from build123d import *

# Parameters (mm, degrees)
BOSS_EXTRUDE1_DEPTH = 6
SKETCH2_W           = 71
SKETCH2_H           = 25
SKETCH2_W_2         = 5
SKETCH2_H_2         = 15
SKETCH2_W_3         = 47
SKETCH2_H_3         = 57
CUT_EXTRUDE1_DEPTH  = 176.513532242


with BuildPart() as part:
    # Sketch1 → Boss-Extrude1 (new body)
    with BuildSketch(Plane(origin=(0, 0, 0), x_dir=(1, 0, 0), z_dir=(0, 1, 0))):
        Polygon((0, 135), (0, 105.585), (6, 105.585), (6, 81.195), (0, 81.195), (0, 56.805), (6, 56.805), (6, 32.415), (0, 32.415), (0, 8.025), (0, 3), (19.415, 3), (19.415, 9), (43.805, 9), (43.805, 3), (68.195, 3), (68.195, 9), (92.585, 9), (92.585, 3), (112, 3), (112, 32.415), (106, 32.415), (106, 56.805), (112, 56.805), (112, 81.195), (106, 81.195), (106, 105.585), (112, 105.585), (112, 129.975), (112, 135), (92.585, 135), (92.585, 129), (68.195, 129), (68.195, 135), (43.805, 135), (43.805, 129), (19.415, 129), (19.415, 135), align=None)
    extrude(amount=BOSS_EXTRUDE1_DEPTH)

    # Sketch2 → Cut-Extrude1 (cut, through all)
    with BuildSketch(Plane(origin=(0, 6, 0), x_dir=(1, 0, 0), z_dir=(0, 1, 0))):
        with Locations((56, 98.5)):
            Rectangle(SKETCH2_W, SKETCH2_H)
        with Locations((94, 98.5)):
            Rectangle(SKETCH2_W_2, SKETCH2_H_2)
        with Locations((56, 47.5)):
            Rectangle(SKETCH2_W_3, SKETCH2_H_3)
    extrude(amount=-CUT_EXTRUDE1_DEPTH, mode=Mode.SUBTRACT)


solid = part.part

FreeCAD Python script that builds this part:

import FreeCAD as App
import Part
import Sketcher

V = App.Vector


def add_polygon(sketch, points):
    """Adds a closed chain of lines whose ends are joined by coincident constraints."""
    first, n = sketch.GeometryCount, len(points)
    for a, b in zip(points, points[1:] + points[:1]):
        sketch.addGeometry(Part.LineSegment(App.Vector(*a, 0), App.Vector(*b, 0)), False)
    for i in range(n):
        sketch.addConstraint(Sketcher.Constraint("Coincident", first + i, 2, first + (i + 1) % n, 1))

doc = App.newDocument("Part")
body = doc.addObject("PartDesign::Body", "Body")

# Sketch on XZ plane
sketch1 = body.newObject("Sketcher::SketchObject", "Sketch")
sketch1.AttachmentSupport = (doc.getObject("XZ_Plane"), [""])
sketch1.MapMode = "FlatFace"
add_polygon(sketch1, [(0, -135), (0, -106), (6, -106), (6, -81), (0, -81), (0, -57), (6, -57), (6, -32), (0, -32), (0, -3), (19, -3), (19, -9), (44, -9), (44, -3), (68, -3), (68, -9), (93, -9), (93, -3), (112, -3), (112, -32), (106, -32), (106, -57), (112, -57), (112, -81), (106, -81), (106, -106), (112, -106), (112, -135), (93, -135), (93, -129), (68, -129), (68, -135), (44, -135), (44, -129), (19, -129), (19, -135)])  # lines 0-35
sketch1.addConstraint([
    Sketcher.Constraint("Vertical", 0),
    Sketcher.Constraint("Horizontal", 1),
    Sketcher.Constraint("Vertical", 2),
    Sketcher.Constraint("Horizontal", 3),
    Sketcher.Constraint("Vertical", 4),
    Sketcher.Constraint("Horizontal", 5),
    Sketcher.Constraint("Vertical", 6),
    Sketcher.Constraint("Horizontal", 7),
    Sketcher.Constraint("Vertical", 8),
    Sketcher.Constraint("Horizontal", 9),
    Sketcher.Constraint("Vertical", 10),
    Sketcher.Constraint("Horizontal", 11),
    Sketcher.Constraint("Vertical", 12),
    Sketcher.Constraint("Horizontal", 13),
    Sketcher.Constraint("Vertical", 14),
    Sketcher.Constraint("Horizontal", 15),
    Sketcher.Constraint("Vertical", 16),
    Sketcher.Constraint("Horizontal", 17),
    Sketcher.Constraint("Vertical", 18),
    Sketcher.Constraint("Horizontal", 19),
    Sketcher.Constraint("Vertical", 20),
    Sketcher.Constraint("Horizontal", 21),
    Sketcher.Constraint("Vertical", 22),
    Sketcher.Constraint("Horizontal", 23),
    Sketcher.Constraint("Vertical", 24),
    Sketcher.Constraint("Horizontal", 25),
    Sketcher.Constraint("Vertical", 26),
    Sketcher.Constraint("Horizontal", 27),
    Sketcher.Constraint("Vertical", 28),
    Sketcher.Constraint("Horizontal", 29),
    Sketcher.Constraint("Vertical", 30),
    Sketcher.Constraint("Horizontal", 31),
    Sketcher.Constraint("Vertical", 32),
    Sketcher.Constraint("Horizontal", 33),
    Sketcher.Constraint("Vertical", 34),
    Sketcher.Constraint("Horizontal", 35),
    Sketcher.Constraint("PointOnObject", 0, 2, -2),
    Sketcher.Constraint("PointOnObject", 3, 2, -2),
    Sketcher.Constraint("PointOnObject", 7, 2, -2),
    Sketcher.Constraint("Horizontal", 9, 2, 12, 2),
    Sketcher.Constraint("Horizontal", 11, 2, 14, 2),
    Sketcher.Constraint("Horizontal", 13, 2, 16, 2),
    Sketcher.Constraint("Horizontal", 7, 2, 18, 2),
    Sketcher.Constraint("Horizontal", 5, 2, 20, 2),
    Sketcher.Constraint("Horizontal", 3, 2, 22, 2),
    Sketcher.Constraint("Horizontal", 1, 2, 24, 2),
    Sketcher.Constraint("Horizontal", 27, 2, 30, 2),
    Sketcher.Constraint("Horizontal", 29, 2, 32, 2),
    Sketcher.Constraint("Horizontal", 31, 2, 34, 2),
    Sketcher.Constraint("Vertical", 2, 2, 5, 2),
    Sketcher.Constraint("Vertical", 18, 2, 21, 2),
    Sketcher.Constraint("Vertical", 20, 2, 23, 2),
    Sketcher.Constraint("Vertical", 22, 2, 25, 2),
    Sketcher.Constraint("Vertical", 16, 2, 27, 2),
    Sketcher.Constraint("Vertical", 14, 2, 29, 2),
    Sketcher.Constraint("Vertical", 12, 2, 31, 2),
    Sketcher.Constraint("Vertical", 10, 2, 33, 2),
    Sketcher.Constraint("Equal", 11, 13),
    Sketcher.Constraint("Equal", 13, 15),
    Sketcher.Constraint("Equal", 9, 17),
    Sketcher.Constraint("Equal", 7, 19),
    Sketcher.Constraint("Equal", 33, 2),
    Sketcher.Constraint("Equal", 2, 4),
    Sketcher.Constraint("Equal", 4, 6),
    Sketcher.Constraint("Equal", 0, 8),
    Sketcher.Constraint("Equal", 25, 10),
    Sketcher.Constraint("Equal", 16, 28),
    Sketcher.Constraint("DistanceX", 1, 1, 1, 2, 6.0),
    Sketcher.Constraint("DistanceY", 8, 2, -1, 1, 3.0),
    Sketcher.Constraint("DistanceX", -1, 1, 17, 2, 112.0),
    Sketcher.Constraint("DistanceY", 26, 2, -1, 1, 135.0),
    Sketcher.Constraint("DistanceX", 11, 1, 11, 2, 24.39),
])
pad1 = body.newObject("PartDesign::Pad", "Pad")
pad1.Profile = sketch1
pad1.Length = 6
pad1.Reversed = True

# Sketch on XZ plane
sketch2 = body.newObject("Sketcher::SketchObject", "Sketch001")
sketch2.AttachmentSupport = (doc.getObject("XZ_Plane"), [""])
sketch2.MapMode = "FlatFace"
sketch2.AttachmentOffset = App.Placement(V(0, 0, -6), App.Rotation())
add_polygon(sketch2, [(20, -111), (20, -86), (92, -86), (92, -91), (96, -91), (96, -106), (92, -106), (92, -111)])  # lines 0-7
add_polygon(sketch2, [(32, -76), (32, -19), (80, -19), (80, -76)])  # lines 8-11
sketch2.addConstraint([
    Sketcher.Constraint("Vertical", 0),
    Sketcher.Constraint("Horizontal", 1),
    Sketcher.Constraint("Vertical", 2),
    Sketcher.Constraint("Horizontal", 3),
    Sketcher.Constraint("Vertical", 4),
    Sketcher.Constraint("Horizontal", 5),
    Sketcher.Constraint("Vertical", 6),
    Sketcher.Constraint("Horizontal", 7),
    Sketcher.Constraint("Vertical", 8),
    Sketcher.Constraint("Horizontal", 9),
    Sketcher.Constraint("Vertical", 10),
    Sketcher.Constraint("Horizontal", 11),
    Sketcher.Constraint("Vertical", 2, 2, 5, 2),
    Sketcher.Constraint("Equal", 5, 2),
    Sketcher.Constraint("Equal", 2, 6),
    Sketcher.Constraint("DistanceX", 1, 1, 1, 2, 71.0),
    Sketcher.Constraint("DistanceX", 3, 1, 3, 2, 5.0),
    Sketcher.Constraint("DistanceX", 9, 1, 9, 2, 47.0),
    Sketcher.Constraint("DistanceY", 0, 1, 0, 2, 25.0),
    Sketcher.Constraint("DistanceY", 8, 1, 8, 2, 57.0),
    Sketcher.Constraint("DistanceY", 0, 2, -1, 1, 86.0),
    Sketcher.Constraint("DistanceY", 8, 2, -1, 1, 19.0),
    Sketcher.Constraint("DistanceX", 0, 2, 8, 2, 12.0),
    Sketcher.Constraint("DistanceX", -1, 1, 0, 2, 20.5),
])
pocket1 = body.newObject("PartDesign::Pocket", "Pocket")
pocket1.Profile = sketch2
pocket1.Type = "ThroughAll"
pocket1.Reversed = True

doc.recompute()
